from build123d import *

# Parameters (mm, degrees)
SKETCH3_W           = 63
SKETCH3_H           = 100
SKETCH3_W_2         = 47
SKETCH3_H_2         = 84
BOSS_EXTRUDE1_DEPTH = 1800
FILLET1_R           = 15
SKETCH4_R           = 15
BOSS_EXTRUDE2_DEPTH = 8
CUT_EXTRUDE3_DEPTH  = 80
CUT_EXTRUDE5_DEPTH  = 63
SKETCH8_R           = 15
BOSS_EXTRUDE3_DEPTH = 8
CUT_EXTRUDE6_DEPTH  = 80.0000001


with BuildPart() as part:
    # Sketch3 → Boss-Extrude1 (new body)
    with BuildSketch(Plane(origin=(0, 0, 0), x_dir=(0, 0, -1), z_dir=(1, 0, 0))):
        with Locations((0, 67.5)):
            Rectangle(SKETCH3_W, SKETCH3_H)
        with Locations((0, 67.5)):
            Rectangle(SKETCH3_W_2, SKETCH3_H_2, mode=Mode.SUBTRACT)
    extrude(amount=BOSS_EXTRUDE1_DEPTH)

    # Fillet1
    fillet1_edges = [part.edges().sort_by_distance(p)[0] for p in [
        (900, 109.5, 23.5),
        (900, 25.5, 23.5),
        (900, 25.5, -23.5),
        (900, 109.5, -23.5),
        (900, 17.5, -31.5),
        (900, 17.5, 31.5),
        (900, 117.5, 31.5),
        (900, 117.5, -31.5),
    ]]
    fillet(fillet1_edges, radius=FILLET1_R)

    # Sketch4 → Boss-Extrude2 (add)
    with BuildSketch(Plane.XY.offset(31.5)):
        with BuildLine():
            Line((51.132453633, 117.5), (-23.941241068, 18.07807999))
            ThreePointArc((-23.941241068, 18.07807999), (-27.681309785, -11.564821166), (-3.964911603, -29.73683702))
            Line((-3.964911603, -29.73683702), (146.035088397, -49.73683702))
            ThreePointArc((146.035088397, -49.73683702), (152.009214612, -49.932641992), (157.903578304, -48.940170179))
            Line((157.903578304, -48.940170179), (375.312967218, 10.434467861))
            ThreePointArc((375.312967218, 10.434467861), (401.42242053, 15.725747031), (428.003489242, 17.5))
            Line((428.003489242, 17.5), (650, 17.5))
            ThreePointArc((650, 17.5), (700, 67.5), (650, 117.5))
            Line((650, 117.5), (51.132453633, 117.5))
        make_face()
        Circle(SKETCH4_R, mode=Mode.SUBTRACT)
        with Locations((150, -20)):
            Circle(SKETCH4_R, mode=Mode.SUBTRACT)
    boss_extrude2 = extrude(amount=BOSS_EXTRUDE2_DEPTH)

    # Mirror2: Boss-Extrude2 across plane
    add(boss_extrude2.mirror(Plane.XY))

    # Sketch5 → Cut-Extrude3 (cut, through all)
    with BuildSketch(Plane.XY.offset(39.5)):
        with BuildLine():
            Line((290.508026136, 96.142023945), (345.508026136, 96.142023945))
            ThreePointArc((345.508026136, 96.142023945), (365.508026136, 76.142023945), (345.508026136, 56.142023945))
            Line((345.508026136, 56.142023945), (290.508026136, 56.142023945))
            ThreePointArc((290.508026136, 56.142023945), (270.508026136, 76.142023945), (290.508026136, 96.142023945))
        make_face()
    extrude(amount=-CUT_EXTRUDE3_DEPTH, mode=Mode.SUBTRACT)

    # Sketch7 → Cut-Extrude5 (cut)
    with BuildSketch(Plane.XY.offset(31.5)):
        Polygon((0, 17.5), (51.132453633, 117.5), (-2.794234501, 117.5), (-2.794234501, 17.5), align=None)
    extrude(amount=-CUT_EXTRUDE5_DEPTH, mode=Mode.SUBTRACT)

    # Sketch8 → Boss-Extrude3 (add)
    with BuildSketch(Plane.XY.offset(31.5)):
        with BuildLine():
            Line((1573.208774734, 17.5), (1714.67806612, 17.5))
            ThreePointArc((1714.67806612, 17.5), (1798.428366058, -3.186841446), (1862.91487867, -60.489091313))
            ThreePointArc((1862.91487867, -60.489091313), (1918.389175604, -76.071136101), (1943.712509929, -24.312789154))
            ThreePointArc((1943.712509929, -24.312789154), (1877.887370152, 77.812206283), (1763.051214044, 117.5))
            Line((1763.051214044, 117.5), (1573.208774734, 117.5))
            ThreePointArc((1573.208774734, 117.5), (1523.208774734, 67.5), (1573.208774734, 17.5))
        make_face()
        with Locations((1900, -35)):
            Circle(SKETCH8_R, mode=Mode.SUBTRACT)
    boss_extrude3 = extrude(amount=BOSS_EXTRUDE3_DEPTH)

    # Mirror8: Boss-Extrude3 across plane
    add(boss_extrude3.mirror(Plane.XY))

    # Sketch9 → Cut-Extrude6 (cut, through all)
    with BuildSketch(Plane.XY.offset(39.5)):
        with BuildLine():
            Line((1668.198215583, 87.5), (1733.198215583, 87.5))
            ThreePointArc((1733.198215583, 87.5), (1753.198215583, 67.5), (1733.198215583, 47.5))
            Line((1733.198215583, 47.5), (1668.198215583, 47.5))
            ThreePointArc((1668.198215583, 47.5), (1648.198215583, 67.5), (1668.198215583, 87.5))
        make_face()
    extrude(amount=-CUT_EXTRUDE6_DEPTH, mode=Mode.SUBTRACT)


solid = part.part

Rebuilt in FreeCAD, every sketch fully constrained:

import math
import FreeCAD as App
import Part
import Sketcher


def edges_at(feature, points):
    """Names of the edges that pass closest to the given points."""
    edges = feature.Shape.Edges
    near = lambda p: min(range(len(edges)), key=lambda i: edges[i].distToShape(Part.Vertex(*p))[0])
    return sorted({f"Edge{near(p) + 1}" for p in points})


def add_polygon(sketch, points):
    """Adds a closed chain of lines whose ends are joined by coincident constraints."""
    first, n = sketch.GeometryCount, len(points)
    for a, b in zip(points, points[1:] + points[:1]):
        sketch.addGeometry(Part.LineSegment(App.Vector(*a, 0), App.Vector(*b, 0)), False)
    for i in range(n):
        sketch.addConstraint(Sketcher.Constraint("Coincident", first + i, 2, first + (i + 1) % n, 1))

doc = App.newDocument("Part")
body = doc.addObject("PartDesign::Body", "Body")

sketch1 = body.newObject("Sketcher::SketchObject", "Sketch")
sketch1.AttachmentSupport = (doc.getObject("YZ_Plane"), [""])
sketch1.MapMode = "FlatFace"
add_polygon(sketch1, [(118, 32), (18, 32), (18, -32), (118, -32)])
add_polygon(sketch1, [(26, -24), (26, 24), (110, 24), (110, -24)])
sketch1.addConstraint([
    Sketcher.Constraint("Horizontal", 0),
    Sketcher.Constraint("Vertical", 1),
    Sketcher.Constraint("Horizontal", 2),
    Sketcher.Constraint("Vertical", 3),
    Sketcher.Constraint("Vertical", 4),
    Sketcher.Constraint("Horizontal", 5),
    Sketcher.Constraint("Vertical", 6),
    Sketcher.Constraint("Horizontal", 7),
    Sketcher.Constraint("DistanceX", 0, 2, 0, 1, 100.0),
    Sketcher.Constraint("DistanceX", 5, 1, 5, 2, 84.0),
    Sketcher.Constraint("DistanceY", 1, 2, 1, 1, 63.0),
    Sketcher.Constraint("DistanceY", 4, 1, 4, 2, 47.0),
    Sketcher.Constraint("DistanceX", 0, 2, 4, 2, 8.0),
    Sketcher.Constraint("DistanceY", 4, 2, 0, 2, 8.0),
    Sketcher.Constraint("DistanceX", -1, 1, 0, 2, 17.5),
    Sketcher.Constraint("DistanceY", -1, 1, 0, 2, 31.5),
])
pad1 = body.newObject("PartDesign::Pad", "Pad")
pad1.Profile = sketch1
pad1.Length = 1800
doc.recompute()

fillet = body.newObject("PartDesign::Fillet", "Fillet")
fillet.Base = (pad1, edges_at(pad1, [
    (900, 109.5, 23.5),
    (900, 25.5, 23.5),
    (900, 25.5, -23.5),
    (900, 109.5, -23.5),
    (900, 17.5, -31.5),
    (900, 17.5, 31.5),
    (900, 117.5, 31.5),
    (900, 117.5, -31.5),
]))
fillet.Radius = 15

sketch2 = body.newObject("Sketcher::SketchObject", "Sketch001")
sketch2.AttachmentSupport = (doc.getObject("XY_Plane"), [""])
sketch2.MapMode = "FlatFace"
sketch2.AttachmentOffset = App.Placement(App.Vector(0, 0, 31.5), App.Rotation())
sketch2.addGeometry([
    Part.LineSegment(App.Vector(51, 118, 0), App.Vector(-24, 18, 0)),
    Part.ArcOfCircle(Part.Circle(App.Vector(0, 0, 0), App.Vector(0, 0, 1), 30), math.radians(143), math.radians(262)),
    Part.LineSegment(App.Vector(-4, -30, 0), App.Vector(146, -50, 0)),
    Part.ArcOfCircle(Part.Circle(App.Vector(150, -20, 0), App.Vector(0, 0, 1), 30), math.radians(-98), math.radians(-75)),
    Part.LineSegment(App.Vector(158, -49, 0), App.Vector(375, 10, 0)),
    Part.ArcOfCircle(Part.Circle(App.Vector(428, -183, 0), App.Vector(0, 0, 1), 200), math.radians(90), math.radians(105.28)),
    Part.LineSegment(App.Vector(428, 18, 0), App.Vector(650, 18, 0)),
    Part.ArcOfCircle(Part.Circle(App.Vector(650, 68, 0), App.Vector(0, 0, 1), 50), math.radians(-90), math.radians(90)),
    Part.LineSegment(App.Vector(650, 118, 0), App.Vector(51, 118, 0)),
    Part.Circle(App.Vector(150, -20, 0), App.Vector(0, 0, 1), 15),
    Part.Circle(App.Vector(0, 0, 0), App.Vector(0, 0, 1), 15),
], False)
sketch2.addConstraint([
    Sketcher.Constraint("Tangent", 0, 2, 1, 1),
    Sketcher.Constraint("Tangent", 1, 2, 2, 1),
    Sketcher.Constraint("Tangent", 2, 2, 3, 1),
    Sketcher.Constraint("Tangent", 3, 2, 4, 1),
    Sketcher.Constraint("Tangent", 4, 2, 5, 2),
    Sketcher.Constraint("Tangent", 5, 1, 6, 1),
    Sketcher.Constraint("Tangent", 6, 2, 7, 1),
    Sketcher.Constraint("Tangent", 7, 2, 8, 1),
    Sketcher.Constraint("Coincident", 8, 2, 0, 1),
    Sketcher.Constraint("Horizontal", 6),
    Sketcher.Constraint("Horizontal", 8),
    Sketcher.Constraint("Coincident", 1, 3, -1, 1),
    Sketcher.Constraint("Coincident", 10, 3, -1, 1),
    Sketcher.Constraint("Coincident", 9, 3, 3, 3),
    Sketcher.Constraint("Equal", 1, 3),
    Sketcher.Constraint("Equal", 9, 10),
    Sketcher.Constraint("Diameter", 9, 30.0),
    Sketcher.Constraint("Radius", 1, 30.0),
    Sketcher.Constraint("Radius", 5, 200.0),
    Sketcher.Constraint("Radius", 7, 50.0),
    Sketcher.Constraint("DistanceX", -1, 1, 3, 3, 150.0),
    Sketcher.Constraint("DistanceY", 3, 3, -1, 1, 20.0),
    Sketcher.Constraint("DistanceX", -1, 1, 7, 3, 650.0),
    Sketcher.Constraint("DistanceY", 5, 3, -1, 1, 182.5),
    Sketcher.Constraint("DistanceX", 6, 1, 6, 2, 221.996511),
    Sketcher.Constraint("DistanceX", 8, 2, 8, 1, 598.867546),
])
pad2 = body.newObject("PartDesign::Pad", "Pad001")
pad2.Profile = sketch2
pad2.Length = 8
doc.recompute()

mirrored = body.newObject("PartDesign::Mirrored", "Mirrored")
mirrored.Originals = [pad2]
mirrored.MirrorPlane = (doc.getObject("XY_Plane"), [""])
body.Tip = mirrored

sketch3 = body.newObject("Sketcher::SketchObject", "Sketch002")
sketch3.AttachmentSupport = (doc.getObject("XY_Plane"), [""])
sketch3.MapMode = "FlatFace"
sketch3.AttachmentOffset = App.Placement(App.Vector(0, 0, 39.5), App.Rotation())
sketch3.addGeometry([
    Part.LineSegment(App.Vector(346, 96, 0), App.Vector(291, 96, 0)),
    Part.ArcOfCircle(Part.Circle(App.Vector(291, 76, 0), App.Vector(0, 0, 1), 20), math.radians(90), math.radians(270)),
    Part.LineSegment(App.Vector(291, 56, 0), App.Vector(346, 56, 0)),
    Part.ArcOfCircle(Part.Circle(App.Vector(346, 76, 0), App.Vector(0, 0, 1), 20), math.radians(-90), math.radians(90)),
], False)
sketch3.addConstraint([
    Sketcher.Constraint("Tangent", 0, 2, 1, 1),
    Sketcher.Constraint("Tangent", 1, 2, 2, 1),
    Sketcher.Constraint("Tangent", 2, 2, 3, 1),
    Sketcher.Constraint("Tangent", 3, 2, 0, 1),
    Sketcher.Constraint("Horizontal", 0),
    Sketcher.Constraint("Horizontal", 2),
    Sketcher.Constraint("Radius", 1, 20.0),
    Sketcher.Constraint("DistanceX", 0, 2, 0, 1, 55.0),
    Sketcher.Constraint("DistanceX", -1, 1, 1, 3, 290.508026),
    Sketcher.Constraint("DistanceY", -1, 1, 1, 3, 76.142024),
])
pocket1 = body.newObject("PartDesign::Pocket", "Pocket")
pocket1.Profile = sketch3
pocket1.Type = "ThroughAll"

sketch4 = body.newObject("Sketcher::SketchObject", "Sketch003")
sketch4.AttachmentSupport = (doc.getObject("XY_Plane"), [""])
sketch4.MapMode = "FlatFace"
sketch4.AttachmentOffset = App.Placement(App.Vector(0, 0, 31.5), App.Rotation())
add_polygon(sketch4, [(0, 17.5), (51.1, 117.5), (-2.8, 117.5), (-2.8, 17.5)])
sketch4.addConstraint([
    Sketcher.Constraint("Horizontal", 1),
    Sketcher.Constraint("Vertical", 2),
    Sketcher.Constraint("Horizontal", 3),
    Sketcher.Constraint("PointOnObject", 3, 2, -2),
    Sketcher.Constraint("DistanceY", 2, 2, 2, 1, 100.0),
    Sketcher.Constraint("DistanceY", -1, 1, 0, 2, 117.5),
    Sketcher.Constraint("DistanceX", 1, 2, 1, 1, 53.926688),
    Sketcher.Constraint("DistanceX", 3, 1, 3, 2, 2.794235),
])
pocket2 = body.newObject("PartDesign::Pocket", "Pocket001")
pocket2.Profile = sketch4
pocket2.Length = 63

sketch5 = body.newObject("Sketcher::SketchObject", "Sketch004")
sketch5.AttachmentSupport = (doc.getObject("XY_Plane"), [""])
sketch5.MapMode = "FlatFace"
sketch5.AttachmentOffset = App.Placement(App.Vector(0, 0, 31.5), App.Rotation())
sketch5.addGeometry([
    Part.LineSegment(App.Vector(1573, 18, 0), App.Vector(1715, 18, 0)),
    Part.ArcOfCircle(Part.Circle(App.Vector(1715, -162, 0), App.Vector(0, 0, 1), 180), math.radians(35), math.radians(90)),
    Part.ArcOfCircle(Part.Circle(App.Vector(1900, -35, 0), App.Vector(0, 0, 1), 45), math.radians(-145), math.radians(14)),
    Part.ArcOfCircle(Part.Circle(App.Vector(1763, -68, 0), App.Vector(0, 0, 1), 186), math.radians(14), math.radians(90)),
    Part.LineSegment(App.Vector(1763, 118, 0), App.Vector(1573, 118, 0)),
    Part.ArcOfCircle(Part.Circle(App.Vector(1573, 68, 0), App.Vector(0, 0, 1), 50), math.radians(90), math.radians(270)),
    Part.Circle(App.Vector(1900, -35, 0), App.Vector(0, 0, 1), 15),
], False)
sketch5.addConstraint([
    Sketcher.Constraint("Tangent", 0, 2, 1, 2),
    Sketcher.Constraint("Tangent", 1, 1, 2, 1),
    Sketcher.Constraint("Tangent", 2, 2, 3, 1),
    Sketcher.Constraint("Tangent", 3, 2, 4, 1),
    Sketcher.Constraint("Tangent", 4, 2, 5, 1),
    Sketcher.Constraint("Tangent", 5, 2, 0, 1),
    Sketcher.Constraint("Horizontal", 0),
    Sketcher.Constraint("Horizontal", 4),
    Sketcher.Constraint("Coincident", 6, 3, 2, 3),
    Sketcher.Constraint("Diameter", 6, 30.0),
    Sketcher.Constraint("Radius", 2, 45.0),
    Sketcher.Constraint("Radius", 5, 50.0),
    Sketcher.Constraint("DistanceX", -1, 1, 2, 3, 1900.0),
    Sketcher.Constraint("DistanceY", 2, 3, -1, 1, 35.0),
    Sketcher.Constraint("DistanceY", -1, 1, 5, 3, 67.5),
    Sketcher.Constraint("Radius", 1, 179.874201),
    Sketcher.Constraint("Radius", 3, 185.982418),
    Sketcher.Constraint("DistanceX", 0, 1, 0, 2, 141.469291),
])
pad3 = body.newObject("PartDesign::Pad", "Pad002")
pad3.Profile = sketch5
pad3.Length = 8
doc.recompute()

mirrored2 = body.newObject("PartDesign::Mirrored", "Mirrored001")
mirrored2.Originals = [pad3]
mirrored2.MirrorPlane = (doc.getObject("XY_Plane"), [""])
body.Tip = mirrored2

sketch6 = body.newObject("Sketcher::SketchObject", "Sketch005")
sketch6.AttachmentSupport = (doc.getObject("XY_Plane"), [""])
sketch6.MapMode = "FlatFace"
sketch6.AttachmentOffset = App.Placement(App.Vector(0, 0, 39.5), App.Rotation())
sketch6.addGeometry([
    Part.LineSegment(App.Vector(1733, 88, 0), App.Vector(1668, 88, 0)),
    Part.ArcOfCircle(Part.Circle(App.Vector(1668, 68, 0), App.Vector(0, 0, 1), 20), math.radians(90), math.radians(270)),
    Part.LineSegment(App.Vector(1668, 48, 0), App.Vector(1733, 48, 0)),
    Part.ArcOfCircle(Part.Circle(App.Vector(1733, 68, 0), App.Vector(0, 0, 1), 20), math.radians(-90), math.radians(90)),
], False)
sketch6.addConstraint([
    Sketcher.Constraint("Tangent", 0, 2, 1, 1),
    Sketcher.Constraint("Tangent", 1, 2, 2, 1),
    Sketcher.Constraint("Tangent", 2, 2, 3, 1),
    Sketcher.Constraint("Tangent", 3, 2, 0, 1),
    Sketcher.Constraint("Horizontal", 0),
    Sketcher.Constraint("Horizontal", 2),
    Sketcher.Constraint("Radius", 1, 20.0),
    Sketcher.Constraint("DistanceX", 0, 2, 0, 1, 65.0),
    Sketcher.Constraint("DistanceY", -1, 1, 1, 3, 67.5),
    Sketcher.Constraint("DistanceX", -1, 1, 1, 3, 1668.198216),
])
pocket3 = body.newObject("PartDesign::Pocket", "Pocket002")
pocket3.Profile = sketch6
pocket3.Type = "ThroughAll"

doc.recompute()
